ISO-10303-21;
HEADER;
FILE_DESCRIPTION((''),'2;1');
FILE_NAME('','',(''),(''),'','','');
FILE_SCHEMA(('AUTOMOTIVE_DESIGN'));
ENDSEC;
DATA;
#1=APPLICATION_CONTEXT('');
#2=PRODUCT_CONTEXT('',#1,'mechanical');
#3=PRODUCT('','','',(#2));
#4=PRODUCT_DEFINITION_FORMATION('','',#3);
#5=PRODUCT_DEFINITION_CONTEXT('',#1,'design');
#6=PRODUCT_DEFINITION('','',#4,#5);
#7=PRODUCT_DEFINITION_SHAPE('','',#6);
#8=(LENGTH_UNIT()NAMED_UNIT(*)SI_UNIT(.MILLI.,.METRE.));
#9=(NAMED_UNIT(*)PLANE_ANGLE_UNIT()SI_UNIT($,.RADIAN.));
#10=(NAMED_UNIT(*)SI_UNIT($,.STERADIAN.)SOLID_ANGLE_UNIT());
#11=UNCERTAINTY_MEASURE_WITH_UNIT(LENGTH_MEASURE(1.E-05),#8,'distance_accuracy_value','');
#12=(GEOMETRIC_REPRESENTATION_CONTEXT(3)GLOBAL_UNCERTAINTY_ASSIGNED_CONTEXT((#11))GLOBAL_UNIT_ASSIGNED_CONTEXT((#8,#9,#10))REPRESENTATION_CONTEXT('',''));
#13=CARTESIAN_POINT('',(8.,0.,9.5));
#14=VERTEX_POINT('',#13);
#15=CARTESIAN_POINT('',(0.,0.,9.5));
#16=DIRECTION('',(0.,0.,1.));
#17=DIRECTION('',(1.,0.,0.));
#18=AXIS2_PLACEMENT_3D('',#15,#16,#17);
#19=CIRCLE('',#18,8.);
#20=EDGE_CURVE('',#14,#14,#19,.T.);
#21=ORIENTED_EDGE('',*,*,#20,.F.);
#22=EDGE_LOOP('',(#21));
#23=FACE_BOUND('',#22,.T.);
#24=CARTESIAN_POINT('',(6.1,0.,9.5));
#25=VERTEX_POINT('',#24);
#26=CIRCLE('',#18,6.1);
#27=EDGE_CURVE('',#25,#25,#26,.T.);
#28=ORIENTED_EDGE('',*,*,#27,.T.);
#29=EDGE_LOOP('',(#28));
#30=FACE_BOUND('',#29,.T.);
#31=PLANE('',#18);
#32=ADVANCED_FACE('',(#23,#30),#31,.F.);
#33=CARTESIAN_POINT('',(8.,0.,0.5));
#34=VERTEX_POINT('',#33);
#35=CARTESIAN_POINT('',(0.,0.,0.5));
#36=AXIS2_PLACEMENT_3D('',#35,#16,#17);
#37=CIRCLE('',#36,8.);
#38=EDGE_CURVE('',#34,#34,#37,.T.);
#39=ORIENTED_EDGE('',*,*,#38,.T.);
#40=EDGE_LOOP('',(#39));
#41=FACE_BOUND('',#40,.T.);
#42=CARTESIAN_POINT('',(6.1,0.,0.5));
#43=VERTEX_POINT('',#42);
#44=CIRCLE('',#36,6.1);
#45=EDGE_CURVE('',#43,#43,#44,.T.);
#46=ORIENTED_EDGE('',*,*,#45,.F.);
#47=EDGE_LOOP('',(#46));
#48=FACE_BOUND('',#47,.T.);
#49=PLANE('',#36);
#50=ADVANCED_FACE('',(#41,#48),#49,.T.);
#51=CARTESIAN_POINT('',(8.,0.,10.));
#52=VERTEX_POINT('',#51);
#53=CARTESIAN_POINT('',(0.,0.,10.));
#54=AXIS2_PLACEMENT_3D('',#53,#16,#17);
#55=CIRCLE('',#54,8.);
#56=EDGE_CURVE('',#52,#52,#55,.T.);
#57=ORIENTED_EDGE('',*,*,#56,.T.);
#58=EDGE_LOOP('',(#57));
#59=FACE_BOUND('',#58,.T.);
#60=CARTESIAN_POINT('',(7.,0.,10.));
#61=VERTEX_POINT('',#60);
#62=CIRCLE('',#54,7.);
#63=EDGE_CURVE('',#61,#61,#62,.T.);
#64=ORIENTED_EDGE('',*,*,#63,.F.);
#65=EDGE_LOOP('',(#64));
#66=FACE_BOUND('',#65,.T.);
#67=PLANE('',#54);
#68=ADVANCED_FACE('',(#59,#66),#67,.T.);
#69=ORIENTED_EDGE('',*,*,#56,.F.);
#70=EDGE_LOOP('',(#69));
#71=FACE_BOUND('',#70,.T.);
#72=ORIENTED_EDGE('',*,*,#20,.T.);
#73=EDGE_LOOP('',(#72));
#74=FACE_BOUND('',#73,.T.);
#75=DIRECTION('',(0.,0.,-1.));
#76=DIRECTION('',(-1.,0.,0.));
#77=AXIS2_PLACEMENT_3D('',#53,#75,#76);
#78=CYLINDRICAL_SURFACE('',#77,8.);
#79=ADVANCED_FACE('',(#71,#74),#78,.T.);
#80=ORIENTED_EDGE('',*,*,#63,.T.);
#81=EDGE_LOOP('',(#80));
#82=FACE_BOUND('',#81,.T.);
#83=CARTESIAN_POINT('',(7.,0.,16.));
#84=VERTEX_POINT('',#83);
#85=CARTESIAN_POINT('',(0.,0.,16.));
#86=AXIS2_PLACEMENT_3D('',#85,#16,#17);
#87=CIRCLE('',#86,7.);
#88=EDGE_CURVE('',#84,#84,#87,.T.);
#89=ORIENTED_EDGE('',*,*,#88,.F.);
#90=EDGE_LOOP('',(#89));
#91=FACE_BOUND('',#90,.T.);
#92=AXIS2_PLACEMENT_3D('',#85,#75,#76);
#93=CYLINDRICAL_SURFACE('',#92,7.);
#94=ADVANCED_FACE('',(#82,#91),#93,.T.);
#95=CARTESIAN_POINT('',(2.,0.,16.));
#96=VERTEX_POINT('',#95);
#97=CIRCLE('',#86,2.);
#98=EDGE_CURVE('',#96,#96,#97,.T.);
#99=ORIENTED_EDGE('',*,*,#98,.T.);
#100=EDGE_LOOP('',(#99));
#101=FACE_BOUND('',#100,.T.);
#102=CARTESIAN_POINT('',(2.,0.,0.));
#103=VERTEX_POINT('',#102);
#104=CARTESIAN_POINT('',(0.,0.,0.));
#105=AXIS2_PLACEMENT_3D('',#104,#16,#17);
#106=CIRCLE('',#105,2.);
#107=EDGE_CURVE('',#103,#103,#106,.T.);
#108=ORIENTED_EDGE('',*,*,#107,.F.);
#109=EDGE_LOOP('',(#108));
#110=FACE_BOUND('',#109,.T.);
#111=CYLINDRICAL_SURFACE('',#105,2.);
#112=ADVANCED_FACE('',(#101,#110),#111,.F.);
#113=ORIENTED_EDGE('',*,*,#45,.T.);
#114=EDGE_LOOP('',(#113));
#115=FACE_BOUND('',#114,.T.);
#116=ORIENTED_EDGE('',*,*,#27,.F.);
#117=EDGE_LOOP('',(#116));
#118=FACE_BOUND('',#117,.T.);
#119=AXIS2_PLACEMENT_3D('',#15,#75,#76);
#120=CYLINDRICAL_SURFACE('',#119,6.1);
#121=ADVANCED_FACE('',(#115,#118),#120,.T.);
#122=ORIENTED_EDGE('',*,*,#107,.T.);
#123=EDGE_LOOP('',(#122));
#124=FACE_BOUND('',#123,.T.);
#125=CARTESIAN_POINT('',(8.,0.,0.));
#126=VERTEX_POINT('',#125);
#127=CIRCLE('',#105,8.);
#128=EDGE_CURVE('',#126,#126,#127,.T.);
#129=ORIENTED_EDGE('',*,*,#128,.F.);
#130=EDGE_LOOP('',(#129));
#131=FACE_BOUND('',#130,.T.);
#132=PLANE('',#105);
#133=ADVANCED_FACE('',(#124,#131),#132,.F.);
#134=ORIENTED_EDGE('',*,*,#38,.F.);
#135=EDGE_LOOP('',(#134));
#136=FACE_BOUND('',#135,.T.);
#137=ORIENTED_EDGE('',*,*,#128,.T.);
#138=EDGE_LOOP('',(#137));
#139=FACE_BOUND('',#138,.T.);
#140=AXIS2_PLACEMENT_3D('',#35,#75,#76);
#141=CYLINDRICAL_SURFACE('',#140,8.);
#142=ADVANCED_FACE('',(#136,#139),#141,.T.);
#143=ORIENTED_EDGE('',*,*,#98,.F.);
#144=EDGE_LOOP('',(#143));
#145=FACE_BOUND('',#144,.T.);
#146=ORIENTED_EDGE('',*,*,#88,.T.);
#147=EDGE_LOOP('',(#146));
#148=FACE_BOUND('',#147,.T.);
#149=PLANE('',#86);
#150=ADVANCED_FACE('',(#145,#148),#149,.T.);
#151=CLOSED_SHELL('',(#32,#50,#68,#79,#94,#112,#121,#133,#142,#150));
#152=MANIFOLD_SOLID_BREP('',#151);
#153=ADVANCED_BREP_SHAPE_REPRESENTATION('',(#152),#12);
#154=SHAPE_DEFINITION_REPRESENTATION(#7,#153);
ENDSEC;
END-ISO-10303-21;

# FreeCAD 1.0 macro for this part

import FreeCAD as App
import Part
import Sketcher

doc = App.newDocument("Part")
params = doc.addObject("Spreadsheet::Sheet", "Params")
for row, (alias, value) in enumerate([
    ("sketch1_diameter", "16 mm"),
    ("pad1_length", "0.5 mm"),
    ("sketch2_diameter", "12.2 mm"),
    ("pad2_length", "9 mm"),
    ("sketch3_diameter", "16 mm"),
    ("pad3_length", "0.5 mm"),
    ("sketch4_diameter", "14 mm"),
    ("pad4_length", "6 mm"),
    ("sketch5_diameter", "4 mm"),
], start=1):
    params.set(f"A{row}", alias)
    params.set(f"B{row}", "=" + value)
    params.setAlias(f"B{row}", alias)

body = doc.addObject("PartDesign::Body", "Body")

# Sketch on XY plane
sketch1 = body.newObject("Sketcher::SketchObject", "Sketch")
sketch1.AttachmentSupport = (doc.getObject("XY_Plane"), [""])
sketch1.MapMode = "FlatFace"
sketch1.addGeometry(Part.Circle(App.Vector(0, 0, 0), App.Vector(0, 0, 1), 8), False)
sketch1.addConstraint([
    Sketcher.Constraint("Coincident", 0, 3, -1, 1),
    Sketcher.Constraint("Diameter", 0, 16.0),
])
sketch1.setExpression("Constraints[1]", "Params.sketch1_diameter")
pad1 = body.newObject("PartDesign::Pad", "Pad")
pad1.Profile = sketch1
pad1.setExpression("Length", "Params.pad1_length")

# Sketch on XY plane
sketch2 = body.newObject("Sketcher::SketchObject", "Sketch001")
sketch2.AttachmentSupport = (doc.getObject("XY_Plane"), [""])
sketch2.MapMode = "FlatFace"
sketch2.AttachmentOffset = App.Placement(App.Vector(0, 0, 0.5), App.Rotation())
sketch2.addGeometry(Part.Circle(App.Vector(0, 0, 0), App.Vector(0, 0, 1), 6), False)
sketch2.addConstraint([
    Sketcher.Constraint("Coincident", 0, 3, -1, 1),
    Sketcher.Constraint("Diameter", 0, 12.2),
])
sketch2.setExpression("Constraints[1]", "Params.sketch2_diameter")
pad2 = body.newObject("PartDesign::Pad", "Pad001")
pad2.Profile = sketch2
pad2.setExpression("Length", "Params.pad2_length")

# Sketch on XY plane
sketch3 = body.newObject("Sketcher::SketchObject", "Sketch002")
sketch3.AttachmentSupport = (doc.getObject("XY_Plane"), [""])
sketch3.MapMode = "FlatFace"
sketch3.AttachmentOffset = App.Placement(App.Vector(0, 0, 9.5), App.Rotation())
sketch3.addGeometry(Part.Circle(App.Vector(0, 0, 0), App.Vector(0, 0, 1), 8), False)
sketch3.addConstraint([
    Sketcher.Constraint("Coincident", 0, 3, -1, 1),
    Sketcher.Constraint("Diameter", 0, 16.0),
])
sketch3.setExpression("Constraints[1]", "Params.sketch3_diameter")
pad3 = body.newObject("PartDesign::Pad", "Pad002")
pad3.Profile = sketch3
pad3.setExpression("Length", "Params.pad3_length")

# Sketch on XY plane
sketch4 = body.newObject("Sketcher::SketchObject", "Sketch003")
sketch4.AttachmentSupport = (doc.getObject("XY_Plane"), [""])
sketch4.MapMode = "FlatFace"
sketch4.AttachmentOffset = App.Placement(App.Vector(0, 0, 10), App.Rotation())
sketch4.addGeometry(Part.Circle(App.Vector(0, 0, 0), App.Vector(0, 0, 1), 7), False)
sketch4.addConstraint([
    Sketcher.Constraint("Coincident", 0, 3, -1, 1),
    Sketcher.Constraint("Diameter", 0, 14.0),
])
sketch4.setExpression("Constraints[1]", "Params.sketch4_diameter")
pad4 = body.newObject("PartDesign::Pad", "Pad003")
pad4.Profile = sketch4
pad4.setExpression("Length", "Params.pad4_length")

# Sketch on XY plane
sketch5 = body.newObject("Sketcher::SketchObject", "Sketch004")
sketch5.AttachmentSupport = (doc.getObject("XY_Plane"), [""])
sketch5.MapMode = "FlatFace"
sketch5.AttachmentOffset = App.Placement(App.Vector(0, 0, 16), App.Rotation())
sketch5.addGeometry(Part.Circle(App.Vector(0, 0, 0), App.Vector(0, 0, 1), 2), False)
sketch5.addConstraint([
    Sketcher.Constraint("Coincident", 0, 3, -1, 1),
    Sketcher.Constraint("Diameter", 0, 4.0),
])
sketch5.setExpression("Constraints[1]", "Params.sketch5_diameter")
pocket1 = body.newObject("PartDesign::Pocket", "Pocket")
pocket1.Profile = sketch5
pocket1.Type = "ThroughAll"

doc.recompute()
